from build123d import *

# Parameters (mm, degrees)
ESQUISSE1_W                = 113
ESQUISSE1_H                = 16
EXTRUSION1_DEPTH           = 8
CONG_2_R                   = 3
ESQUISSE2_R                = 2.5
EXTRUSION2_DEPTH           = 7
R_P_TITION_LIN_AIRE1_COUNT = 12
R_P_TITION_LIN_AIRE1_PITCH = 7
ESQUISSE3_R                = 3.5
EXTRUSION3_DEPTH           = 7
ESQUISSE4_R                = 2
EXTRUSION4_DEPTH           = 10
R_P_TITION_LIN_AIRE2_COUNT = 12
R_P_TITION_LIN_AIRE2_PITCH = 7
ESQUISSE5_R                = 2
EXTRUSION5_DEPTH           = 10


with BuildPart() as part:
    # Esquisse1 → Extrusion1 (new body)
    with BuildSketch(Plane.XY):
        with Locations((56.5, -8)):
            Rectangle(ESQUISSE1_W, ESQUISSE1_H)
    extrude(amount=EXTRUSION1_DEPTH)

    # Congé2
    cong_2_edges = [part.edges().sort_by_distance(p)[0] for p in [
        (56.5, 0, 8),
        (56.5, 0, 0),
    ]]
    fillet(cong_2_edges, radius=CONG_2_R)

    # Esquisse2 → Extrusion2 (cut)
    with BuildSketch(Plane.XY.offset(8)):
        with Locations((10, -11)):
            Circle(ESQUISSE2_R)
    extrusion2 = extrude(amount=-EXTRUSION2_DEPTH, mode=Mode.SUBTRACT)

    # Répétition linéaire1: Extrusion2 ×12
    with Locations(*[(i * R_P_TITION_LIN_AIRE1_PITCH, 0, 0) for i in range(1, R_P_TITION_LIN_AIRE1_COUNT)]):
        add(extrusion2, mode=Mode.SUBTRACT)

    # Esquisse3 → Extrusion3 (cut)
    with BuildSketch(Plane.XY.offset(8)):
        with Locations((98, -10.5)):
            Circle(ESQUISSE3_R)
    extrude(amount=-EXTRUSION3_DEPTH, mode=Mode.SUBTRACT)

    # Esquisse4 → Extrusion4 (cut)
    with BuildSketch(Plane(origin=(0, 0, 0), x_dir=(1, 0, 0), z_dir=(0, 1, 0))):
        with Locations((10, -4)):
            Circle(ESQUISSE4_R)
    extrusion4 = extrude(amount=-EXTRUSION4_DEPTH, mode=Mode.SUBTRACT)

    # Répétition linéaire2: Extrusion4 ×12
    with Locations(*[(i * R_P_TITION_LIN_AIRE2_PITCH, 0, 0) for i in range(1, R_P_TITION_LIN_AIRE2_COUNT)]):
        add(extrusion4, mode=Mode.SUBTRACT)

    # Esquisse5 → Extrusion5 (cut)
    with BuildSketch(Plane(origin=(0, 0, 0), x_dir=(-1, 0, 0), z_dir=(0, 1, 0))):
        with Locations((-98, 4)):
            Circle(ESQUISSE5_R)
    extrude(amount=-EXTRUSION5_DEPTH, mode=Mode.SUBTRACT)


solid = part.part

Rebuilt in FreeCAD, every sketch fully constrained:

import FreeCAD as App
import Part
import Sketcher
from FreeCAD import Vector


def edges_at(feature, points):
    """Names of the edges that pass closest to the given points."""
    edges = feature.Shape.Edges
    near = lambda p: min(range(len(edges)), key=lambda i: edges[i].distToShape(Part.Vertex(*p))[0])
    return sorted({f"Edge{near(p) + 1}" for p in points})


def add_polygon(sketch, points):
    """Adds a closed chain of lines whose ends are joined by coincident constraints."""
    first, n = sketch.GeometryCount, len(points)
    for a, b in zip(points, points[1:] + points[:1]):
        sketch.addGeometry(Part.LineSegment(App.Vector(*a, 0), App.Vector(*b, 0)), False)
    for i in range(n):
        sketch.addConstraint(Sketcher.Constraint("Coincident", first + i, 2, first + (i + 1) % n, 1))

doc = App.newDocument("Part")
body = doc.addObject("PartDesign::Body", "Body")

sketch1 = body.newObject("Sketcher::SketchObject", "Sketch")
sketch1.AttachmentSupport = (doc.getObject("XY_Plane"), [""])
sketch1.MapMode = "FlatFace"
add_polygon(sketch1, [(0, 0), (0, -16), (113, -16), (113, 0)])
sketch1.addConstraint(Sketcher.Constraint("Vertical", 0))
sketch1.addConstraint(Sketcher.Constraint("Horizontal", 1))
sketch1.addConstraint(Sketcher.Constraint("Vertical", 2))
sketch1.addConstraint(Sketcher.Constraint("Horizontal", 3))
sketch1.addConstraint(Sketcher.Constraint("Coincident", 3, 2, -1, 1))
sketch1.addConstraint(Sketcher.Constraint("DistanceX", 1, 1, 1, 2, 113.0))
sketch1.addConstraint(Sketcher.Constraint("DistanceY", 0, 2, 0, 1, 16.0))
pad1 = body.newObject("PartDesign::Pad", "Pad")
pad1.Profile = sketch1
pad1.Length = 8
doc.recompute()

fillet = body.newObject("PartDesign::Fillet", "Fillet")
fillet.Base = (pad1, edges_at(pad1, [(56.5, 0, 8), (56.5, 0, 0)]))
fillet.Radius = 3

sketch2 = body.newObject("Sketcher::SketchObject", "Sketch001")
sketch2.AttachmentSupport = (doc.getObject("XY_Plane"), [""])
sketch2.MapMode = "FlatFace"
sketch2.AttachmentOffset = App.Placement(Vector(0, 0, 8), App.Rotation())
sketch2.addGeometry(Part.Circle(Vector(10, -11, 0), Vector(0, 0, 1), 2.5), False)
sketch2.addConstraint(Sketcher.Constraint("Diameter", 0, 5.0))
sketch2.addConstraint(Sketcher.Constraint("DistanceX", -1, 1, 0, 3, 10.0))
sketch2.addConstraint(Sketcher.Constraint("DistanceY", 0, 3, -1, 1, 11.0))
pocket1 = body.newObject("PartDesign::Pocket", "Pocket")
pocket1.Profile = sketch2
pocket1.Length = 7
doc.recompute()

linearpattern = body.newObject("PartDesign::LinearPattern", "LinearPattern")
linearpattern.Originals = [pocket1]
linearpattern.Direction = (doc.getObject("X_Axis"), [""])
linearpattern.Mode = "offset"
linearpattern.Offset = 7
linearpattern.Occurrences = 12
body.Tip = linearpattern

sketch3 = body.newObject("Sketcher::SketchObject", "Sketch002")
sketch3.AttachmentSupport = (doc.getObject("XY_Plane"), [""])
sketch3.MapMode = "FlatFace"
sketch3.AttachmentOffset = App.Placement(Vector(0, 0, 8), App.Rotation())
sketch3.addGeometry(Part.Circle(Vector(98, -10.5, 0), Vector(0, 0, 1), 3.5), False)
sketch3.addConstraint(Sketcher.Constraint("Diameter", 0, 7.0))
sketch3.addConstraint(Sketcher.Constraint("DistanceX", -1, 1, 0, 3, 98.0))
sketch3.addConstraint(Sketcher.Constraint("DistanceY", 0, 3, -1, 1, 10.5))
pocket2 = body.newObject("PartDesign::Pocket", "Pocket001")
pocket2.Profile = sketch3
pocket2.Length = 7

sketch4 = body.newObject("Sketcher::SketchObject", "Sketch003")
sketch4.AttachmentSupport = (doc.getObject("XZ_Plane"), [""])
sketch4.MapMode = "FlatFace"
sketch4.addGeometry(Part.Circle(Vector(10, 4, 0), Vector(0, 0, 1), 2), False)
sketch4.addConstraint(Sketcher.Constraint("Diameter", 0, 4.0))
sketch4.addConstraint(Sketcher.Constraint("DistanceX", -1, 1, 0, 3, 10.0))
sketch4.addConstraint(Sketcher.Constraint("DistanceY", -1, 1, 0, 3, 4.0))
pocket3 = body.newObject("PartDesign::Pocket", "Pocket002")
pocket3.Profile = sketch4
pocket3.Length = 10
pocket3.Reversed = True
doc.recompute()

linearpattern2 = body.newObject("PartDesign::LinearPattern", "LinearPattern001")
linearpattern2.Originals = [pocket3]
linearpattern2.Direction = (doc.getObject("X_Axis"), [""])
linearpattern2.Mode = "offset"
linearpattern2.Offset = 7
linearpattern2.Occurrences = 12
body.Tip = linearpattern2

sketch5 = body.newObject("Sketcher::SketchObject", "Sketch004")
sketch5.AttachmentSupport = (doc.getObject("XZ_Plane"), [""])
sketch5.MapMode = "FlatFace"
sketch5.addGeometry(Part.Circle(Vector(98, 4, 0), Vector(0, 0, 1), 2), False)
sketch5.addConstraint(Sketcher.Constraint("Diameter", 0, 4.0))
sketch5.addConstraint(Sketcher.Constraint("DistanceX", -1, 1, 0, 3, 98.0))
sketch5.addConstraint(Sketcher.Constraint("DistanceY", -1, 1, 0, 3, 4.0))
pocket4 = body.newObject("PartDesign::Pocket", "Pocket003")
pocket4.Profile = sketch5
pocket4.Length = 10
pocket4.Reversed = True

doc.recompute()
